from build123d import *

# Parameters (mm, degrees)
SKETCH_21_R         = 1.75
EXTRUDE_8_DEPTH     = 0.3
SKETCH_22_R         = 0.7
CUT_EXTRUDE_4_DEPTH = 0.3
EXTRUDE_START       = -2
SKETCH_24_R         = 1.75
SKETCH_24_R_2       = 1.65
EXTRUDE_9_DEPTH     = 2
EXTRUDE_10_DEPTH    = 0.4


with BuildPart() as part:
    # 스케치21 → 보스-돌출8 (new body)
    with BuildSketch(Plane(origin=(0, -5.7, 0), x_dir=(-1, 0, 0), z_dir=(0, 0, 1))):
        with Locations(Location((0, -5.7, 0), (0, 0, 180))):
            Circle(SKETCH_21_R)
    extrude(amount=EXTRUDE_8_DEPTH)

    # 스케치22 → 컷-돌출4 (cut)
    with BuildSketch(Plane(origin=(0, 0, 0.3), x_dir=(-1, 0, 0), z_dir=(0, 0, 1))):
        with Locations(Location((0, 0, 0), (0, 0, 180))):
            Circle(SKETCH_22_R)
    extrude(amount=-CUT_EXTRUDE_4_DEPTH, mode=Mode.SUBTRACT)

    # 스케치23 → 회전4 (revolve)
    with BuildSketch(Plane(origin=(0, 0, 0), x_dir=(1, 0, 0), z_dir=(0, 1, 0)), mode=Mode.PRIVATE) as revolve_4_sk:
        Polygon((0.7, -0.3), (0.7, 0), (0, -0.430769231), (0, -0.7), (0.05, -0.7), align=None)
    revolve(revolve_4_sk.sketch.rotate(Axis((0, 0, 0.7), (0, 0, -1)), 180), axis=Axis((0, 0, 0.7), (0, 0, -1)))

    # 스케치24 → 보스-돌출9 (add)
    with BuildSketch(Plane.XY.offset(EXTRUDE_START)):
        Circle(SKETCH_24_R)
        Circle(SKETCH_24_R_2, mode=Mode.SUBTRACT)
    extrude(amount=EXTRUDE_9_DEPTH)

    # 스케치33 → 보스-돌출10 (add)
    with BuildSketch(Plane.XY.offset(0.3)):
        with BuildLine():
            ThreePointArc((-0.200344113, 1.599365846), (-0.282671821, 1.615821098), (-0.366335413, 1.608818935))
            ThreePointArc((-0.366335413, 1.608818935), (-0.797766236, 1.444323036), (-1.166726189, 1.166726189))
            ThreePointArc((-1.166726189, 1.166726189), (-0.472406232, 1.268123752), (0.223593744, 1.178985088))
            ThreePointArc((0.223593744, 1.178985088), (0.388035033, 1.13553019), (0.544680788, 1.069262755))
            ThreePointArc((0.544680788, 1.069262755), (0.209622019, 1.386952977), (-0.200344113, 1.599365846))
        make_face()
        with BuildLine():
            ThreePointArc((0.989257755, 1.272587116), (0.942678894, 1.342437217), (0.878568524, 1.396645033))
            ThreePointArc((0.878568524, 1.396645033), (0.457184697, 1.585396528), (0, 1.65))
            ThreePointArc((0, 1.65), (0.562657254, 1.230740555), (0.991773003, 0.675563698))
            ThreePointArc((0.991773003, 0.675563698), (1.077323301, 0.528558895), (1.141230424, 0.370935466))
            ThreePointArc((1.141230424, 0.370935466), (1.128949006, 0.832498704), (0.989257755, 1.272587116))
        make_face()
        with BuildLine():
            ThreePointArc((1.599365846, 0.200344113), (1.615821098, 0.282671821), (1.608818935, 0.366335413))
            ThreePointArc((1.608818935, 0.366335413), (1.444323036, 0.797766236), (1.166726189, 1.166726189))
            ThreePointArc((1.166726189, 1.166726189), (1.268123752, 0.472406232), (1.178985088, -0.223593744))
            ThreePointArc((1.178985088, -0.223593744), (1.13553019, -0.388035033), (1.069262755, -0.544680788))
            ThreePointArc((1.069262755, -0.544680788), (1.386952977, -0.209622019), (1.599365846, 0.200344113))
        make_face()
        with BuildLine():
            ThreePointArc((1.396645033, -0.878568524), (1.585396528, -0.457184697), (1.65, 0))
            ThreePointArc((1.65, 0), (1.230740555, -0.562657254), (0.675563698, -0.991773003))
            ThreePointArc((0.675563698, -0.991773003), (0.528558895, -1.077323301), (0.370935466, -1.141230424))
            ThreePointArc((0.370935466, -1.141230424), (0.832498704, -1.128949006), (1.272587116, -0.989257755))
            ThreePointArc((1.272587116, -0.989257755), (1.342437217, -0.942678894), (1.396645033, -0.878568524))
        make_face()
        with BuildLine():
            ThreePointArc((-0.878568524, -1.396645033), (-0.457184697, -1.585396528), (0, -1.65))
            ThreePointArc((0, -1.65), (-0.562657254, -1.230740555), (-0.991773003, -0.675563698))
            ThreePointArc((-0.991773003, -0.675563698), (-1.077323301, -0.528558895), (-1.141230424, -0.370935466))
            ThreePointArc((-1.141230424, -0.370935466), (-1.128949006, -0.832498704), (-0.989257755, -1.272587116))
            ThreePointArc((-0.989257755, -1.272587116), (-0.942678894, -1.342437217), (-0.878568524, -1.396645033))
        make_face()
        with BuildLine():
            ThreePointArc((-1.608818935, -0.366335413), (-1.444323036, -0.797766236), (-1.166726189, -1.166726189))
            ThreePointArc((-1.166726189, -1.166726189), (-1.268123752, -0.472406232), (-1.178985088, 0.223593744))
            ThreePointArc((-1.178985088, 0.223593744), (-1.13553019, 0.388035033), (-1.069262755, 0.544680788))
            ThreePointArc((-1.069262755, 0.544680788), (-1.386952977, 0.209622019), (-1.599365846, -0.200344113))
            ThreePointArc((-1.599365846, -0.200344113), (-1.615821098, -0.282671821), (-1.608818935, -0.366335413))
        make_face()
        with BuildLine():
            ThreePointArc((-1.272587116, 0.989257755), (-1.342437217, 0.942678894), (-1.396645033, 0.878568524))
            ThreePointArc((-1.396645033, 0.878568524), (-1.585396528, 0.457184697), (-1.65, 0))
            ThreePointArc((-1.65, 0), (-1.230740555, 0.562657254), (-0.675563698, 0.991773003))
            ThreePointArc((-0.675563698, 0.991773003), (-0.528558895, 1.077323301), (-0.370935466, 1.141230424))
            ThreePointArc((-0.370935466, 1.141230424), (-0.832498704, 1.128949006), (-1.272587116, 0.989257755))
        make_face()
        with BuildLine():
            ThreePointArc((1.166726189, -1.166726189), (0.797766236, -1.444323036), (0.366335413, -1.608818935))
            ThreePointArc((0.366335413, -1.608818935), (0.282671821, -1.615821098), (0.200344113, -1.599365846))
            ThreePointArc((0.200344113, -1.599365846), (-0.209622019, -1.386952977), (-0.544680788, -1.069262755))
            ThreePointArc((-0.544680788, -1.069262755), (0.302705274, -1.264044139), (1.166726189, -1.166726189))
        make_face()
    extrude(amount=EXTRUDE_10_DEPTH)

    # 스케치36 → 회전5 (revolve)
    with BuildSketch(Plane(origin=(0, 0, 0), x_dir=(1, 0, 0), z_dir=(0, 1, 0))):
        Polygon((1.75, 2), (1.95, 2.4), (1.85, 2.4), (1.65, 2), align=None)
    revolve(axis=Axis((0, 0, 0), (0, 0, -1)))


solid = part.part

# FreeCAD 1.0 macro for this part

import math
import FreeCAD as App
import Part
import Sketcher

V = App.Vector
Q = App.Units.Quantity

doc = App.newDocument("Part")
body = doc.addObject("PartDesign::Body", "Body")

# Sketch on XY plane
sketch1 = body.newObject("Sketcher::SketchObject", "Sketch")
sketch1.AttachmentSupport = (doc.getObject("XY_Plane"), [""])
sketch1.MapMode = "FlatFace"
sketch1.addGeometry(Part.Circle(V(0, 0, 0), V(0, 0, 1), 1.75), False)
sketch1.addConstraint(Sketcher.Constraint("Coincident", 0, 3, -1, 1))
sketch1.addConstraint(Sketcher.Constraint("Diameter", 0, Q("3.5 mm")))
pad1 = body.newObject("PartDesign::Pad", "Pad")
pad1.Profile = sketch1
pad1.Length = 0.3

# Sketch on XY plane
sketch2 = body.newObject("Sketcher::SketchObject", "Sketch001")
sketch2.AttachmentSupport = (doc.getObject("XY_Plane"), [""])
sketch2.MapMode = "FlatFace"
sketch2.AttachmentOffset = App.Placement(V(0, 0, 0.3), App.Rotation())
sketch2.addGeometry(Part.Circle(V(0, 0, 0), V(0, 0, 1), 0.7), False)
sketch2.addConstraint(Sketcher.Constraint("Coincident", 0, 3, -1, 1))
sketch2.addConstraint(Sketcher.Constraint("Diameter", 0, Q("1.4 mm")))
pocket1 = body.newObject("PartDesign::Pocket", "Pocket")
pocket1.Profile = sketch2
pocket1.Length = 0.3

# Sketch on XZ plane
sketch3 = body.newObject("Sketcher::SketchObject", "Sketch002")
sketch3.AttachmentSupport = (doc.getObject("XZ_Plane"), [""])
sketch3.MapMode = "FlatFace"
sketch3.addGeometry(Part.LineSegment(V(0.7, 0.3, 0), V(0.7, 0, 0)), False)
sketch3.addGeometry(Part.LineSegment(V(0.7, 0, 0), V(0, 0.430769, 0)), False)
sketch3.addGeometry(Part.LineSegment(V(0, 0.430769, 0), V(0, 0.7, 0)), False)
sketch3.addGeometry(Part.LineSegment(V(0, 0.7, 0), V(0.05, 0.7, 0)), False)
sketch3.addGeometry(Part.LineSegment(V(0.05, 0.7, 0), V(0.7, 0.3, 0)), False)
sketch3.addConstraint(Sketcher.Constraint("Coincident", 0, 2, 1, 1))
sketch3.addConstraint(Sketcher.Constraint("Coincident", 1, 2, 2, 1))
sketch3.addConstraint(Sketcher.Constraint("Coincident", 2, 2, 3, 1))
sketch3.addConstraint(Sketcher.Constraint("Coincident", 3, 2, 4, 1))
sketch3.addConstraint(Sketcher.Constraint("Coincident", 4, 2, 0, 1))
sketch3.addConstraint(Sketcher.Constraint("Vertical", 0))
sketch3.addConstraint(Sketcher.Constraint("Vertical", 2))
sketch3.addConstraint(Sketcher.Constraint("Horizontal", 3))
sketch3.addConstraint(Sketcher.Constraint("PointOnObject", 0, 2, -1))
sketch3.addConstraint(Sketcher.Constraint("PointOnObject", 1, 2, -2))
sketch3.addConstraint(Sketcher.Constraint("Parallel", 1, 4))
sketch3.addConstraint(Sketcher.Constraint("DistanceY", 0, 2, 0, 1, Q("0.3 mm")))
sketch3.addConstraint(Sketcher.Constraint("DistanceX", 3, 1, 3, 2, Q("0.05 mm")))
sketch3.addConstraint(Sketcher.Constraint("DistanceX", -1, 1, 0, 2, Q("0.7 mm")))
sketch3.addConstraint(Sketcher.Constraint("DistanceY", -1, 1, 2, 2, Q("0.7 mm")))
revolution = body.newObject("PartDesign::Revolution", "Revolution")
revolution.Profile = sketch3
revolution.ReferenceAxis = (sketch3, ["V_Axis"])
revolution.Angle = 360

# Sketch on XY plane
sketch4 = body.newObject("Sketcher::SketchObject", "Sketch003")
sketch4.AttachmentSupport = (doc.getObject("XY_Plane"), [""])
sketch4.MapMode = "FlatFace"
sketch4.AttachmentOffset = App.Placement(V(0, 0, -2), App.Rotation())
sketch4.addGeometry(Part.Circle(V(0, 0, 0), V(0, 0, 1), 1.75), False)
sketch4.addGeometry(Part.Circle(V(0, 0, 0), V(0, 0, 1), 1.65), False)
sketch4.addConstraint(Sketcher.Constraint("Coincident", 0, 3, -1, 1))
sketch4.addConstraint(Sketcher.Constraint("Coincident", 1, 3, -1, 1))
sketch4.addConstraint(Sketcher.Constraint("Diameter", 0, Q("3.5 mm")))
sketch4.addConstraint(Sketcher.Constraint("Diameter", 1, Q("3.3 mm")))
pad2 = body.newObject("PartDesign::Pad", "Pad001")
pad2.Profile = sketch4
pad2.Length = 2

# Sketch on XY plane
sketch5 = body.newObject("Sketcher::SketchObject", "Sketch004")
sketch5.AttachmentSupport = (doc.getObject("XY_Plane"), [""])
sketch5.MapMode = "FlatFace"
sketch5.AttachmentOffset = App.Placement(V(0, 0, 0.3), App.Rotation())
sketch5.addGeometry(Part.ArcOfCircle(Part.Circle(V(-0.299729, 1.316306, 0), V(0, 0, 1), 0.3), math.radians(70.653341), math.radians(102.827791)), False)
sketch5.addGeometry(Part.ArcOfCircle(Part.Circle(V(0, 0, 0), V(0, 0, 1), 1.65), math.radians(102.827791), math.radians(135)), False)
sketch5.addGeometry(Part.ArcOfCircle(Part.Circle(V(-0.449623, -1.31576, 0), V(0, 0, 1), 2.583984), math.radians(74.898218), math.radians(106.112147)), False)
sketch5.addGeometry(Part.ArcOfCircle(Part.Circle(V(0, 0, 0), V(0, 0, 1), 1.2), math.radians(63.005777), math.radians(79.261425)), False)
sketch5.addGeometry(Part.ArcOfCircle(Part.Circle(V(-0.746961, 0.042539, 0), V(0, 0, 1), 1.65), math.radians(38.481132), math.radians(70.653341)), False)
sketch5.addGeometry(Part.ArcOfCircle(Part.Circle(V(0.718829, 1.14271, 0), V(0, 0, 1), 0.3), math.radians(25.653341), math.radians(57.827791)), False)
sketch5.addGeometry(Part.ArcOfCircle(Part.Circle(V(0, 0, 0), V(0, 0, 1), 1.65), math.radians(57.827791), math.radians(90)), False)
sketch5.addGeometry(Part.ArcOfCircle(Part.Circle(V(-1.248314, -0.612451, 0), V(0, 0, 1), 2.583984), math.radians(29.898218), math.radians(61.112147)), False)
sketch5.addGeometry(Part.ArcOfCircle(Part.Circle(V(0, 0, 0), V(0, 0, 1), 1.2), math.radians(18.005777), math.radians(34.261426)), False)
sketch5.addGeometry(Part.ArcOfCircle(Part.Circle(V(-0.498102, 0.558261, 0), V(0, 0, 1), 1.65), math.radians(-6.518868), math.radians(25.653341)), False)
sketch5.addGeometry(Part.ArcOfCircle(Part.Circle(V(1.316306, 0.299729, 0), V(0, 0, 1), 0.3), math.radians(-19.346659), math.radians(12.827791)), False)
sketch5.addGeometry(Part.ArcOfCircle(Part.Circle(V(0, 0, 0), V(0, 0, 1), 1.65), math.radians(12.827791), math.radians(45)), False)
sketch5.addGeometry(Part.ArcOfCircle(Part.Circle(V(-1.31576, 0.449623, 0), V(0, 0, 1), 2.583984), math.radians(-15.101782), math.radians(16.112147)), False)
sketch5.addGeometry(Part.ArcOfCircle(Part.Circle(V(0, 0, 0), V(0, 0, 1), 1.2), math.radians(-26.994223), math.radians(-10.738575)), False)
sketch5.addGeometry(Part.ArcOfCircle(Part.Circle(V(0.042539, 0.746961, 0), V(0, 0, 1), 1.65), math.radians(-51.518868), math.radians(-19.346659)), False)
sketch5.addGeometry(Part.ArcOfCircle(Part.Circle(V(0, 0, 0), V(0, 0, 1), 1.65), math.radians(-32.172209), math.radians(0)), False)
sketch5.addGeometry(Part.ArcOfCircle(Part.Circle(V(-0.612451, 1.248314, 0), V(0, 0, 1), 2.583984), math.radians(-60.101782), math.radians(-28.887853)), False)
sketch5.addGeometry(Part.ArcOfCircle(Part.Circle(V(0, 0, 0), V(0, 0, 1), 1.2), math.radians(-71.994223), math.radians(-55.738574)), False)
sketch5.addGeometry(Part.ArcOfCircle(Part.Circle(V(0.558261, 0.498102, 0), V(0, 0, 1), 1.65), math.radians(-96.518868), math.radians(-64.346659)), False)
sketch5.addGeometry(Part.ArcOfCircle(Part.Circle(V(1.14271, -0.718829, 0), V(0, 0, 1), 0.3), math.radians(-64.346659), math.radians(-32.172209)), False)
sketch5.addGeometry(Part.ArcOfCircle(Part.Circle(V(0, 0, 0), V(0, 0, 1), 1.65), math.radians(-122.172209), math.radians(-90)), False)
sketch5.addGeometry(Part.ArcOfCircle(Part.Circle(V(1.248314, 0.612451, 0), V(0, 0, 1), 2.583984), math.radians(-150.101782), math.radians(-118.887853)), False)
sketch5.addGeometry(Part.ArcOfCircle(Part.Circle(V(0, 0, 0), V(0, 0, 1), 1.2), math.radians(-161.994223), math.radians(-145.738574)), False)
sketch5.addGeometry(Part.ArcOfCircle(Part.Circle(V(0.498102, -0.558261, 0), V(0, 0, 1), 1.65), math.radians(173.481132), math.radians(205.653341)), False)
sketch5.addGeometry(Part.ArcOfCircle(Part.Circle(V(-0.718829, -1.14271, 0), V(0, 0, 1), 0.3), math.radians(-154.346659), math.radians(-122.172209)), False)
sketch5.addGeometry(Part.ArcOfCircle(Part.Circle(V(0, 0, 0), V(0, 0, 1), 1.65), math.radians(-167.172209), math.radians(-135)), False)
sketch5.addGeometry(Part.ArcOfCircle(Part.Circle(V(1.31576, -0.449623, 0), V(0, 0, 1), 2.583984), math.radians(164.898218), math.radians(196.112147)), False)
sketch5.addGeometry(Part.ArcOfCircle(Part.Circle(V(0, 0, 0), V(0, 0, 1), 1.2), math.radians(153.005777), math.radians(169.261425)), False)
sketch5.addGeometry(Part.ArcOfCircle(Part.Circle(V(-0.042539, -0.746961, 0), V(0, 0, 1), 1.65), math.radians(128.481132), math.radians(160.653341)), False)
sketch5.addGeometry(Part.ArcOfCircle(Part.Circle(V(-1.316306, -0.299729, 0), V(0, 0, 1), 0.3), math.radians(160.653341), math.radians(192.827791)), False)
sketch5.addGeometry(Part.ArcOfCircle(Part.Circle(V(-1.14271, 0.718829, 0), V(0, 0, 1), 0.3), math.radians(115.653341), math.radians(147.827791)), False)
sketch5.addGeometry(Part.ArcOfCircle(Part.Circle(V(0, 0, 0), V(0, 0, 1), 1.65), math.radians(147.827791), math.radians(180)), False)
sketch5.addGeometry(Part.ArcOfCircle(Part.Circle(V(0.612451, -1.248314, 0), V(0, 0, 1), 2.583984), math.radians(119.898218), math.radians(151.112147)), False)
sketch5.addGeometry(Part.ArcOfCircle(Part.Circle(V(0, 0, 0), V(0, 0, 1), 1.2), math.radians(108.005777), math.radians(124.261426)), False)
sketch5.addGeometry(Part.ArcOfCircle(Part.Circle(V(-0.558261, -0.498102, 0), V(0, 0, 1), 1.65), math.radians(83.481132), math.radians(115.653341)), False)
sketch5.addGeometry(Part.ArcOfCircle(Part.Circle(V(0, 0, 0), V(0, 0, 1), 1.65), math.radians(-77.172209), math.radians(-45)), False)
sketch5.addGeometry(Part.ArcOfCircle(Part.Circle(V(0.449623, 1.31576, 0), V(0, 0, 1), 2.583984), math.radians(-112.631015), math.radians(-73.887853)), False)
sketch5.addGeometry(Part.ArcOfCircle(Part.Circle(V(0.746961, -0.042539, 0), V(0, 0, 1), 1.65), math.radians(-141.518868), math.radians(-109.346659)), False)
sketch5.addGeometry(Part.ArcOfCircle(Part.Circle(V(0.299729, -1.316306, 0), V(0, 0, 1), 0.3), math.radians(-109.346659), math.radians(-77.172209)), False)
sketch5.addConstraint(Sketcher.Constraint("Tangent", 0, 2, 1, 1))
sketch5.addConstraint(Sketcher.Constraint("Coincident", 1, 2, 2, 2))
sketch5.addConstraint(Sketcher.Constraint("Coincident", 2, 1, 3, 2))
sketch5.addConstraint(Sketcher.Constraint("Coincident", 3, 1, 4, 1))
sketch5.addConstraint(Sketcher.Constraint("Tangent", 4, 2, 0, 1))
sketch5.addConstraint(Sketcher.Constraint("Tangent", 5, 2, 6, 1))
sketch5.addConstraint(Sketcher.Constraint("Coincident", 6, 2, 7, 2))
sketch5.addConstraint(Sketcher.Constraint("Coincident", 7, 1, 8, 2))
sketch5.addConstraint(Sketcher.Constraint("Coincident", 8, 1, 9, 1))
sketch5.addConstraint(Sketcher.Constraint("Tangent", 9, 2, 5, 1))
sketch5.addConstraint(Sketcher.Constraint("Tangent", 10, 2, 11, 1))
sketch5.addConstraint(Sketcher.Constraint("Coincident", 11, 2, 12, 2))
sketch5.addConstraint(Sketcher.Constraint("Coincident", 12, 1, 13, 2))
sketch5.addConstraint(Sketcher.Constraint("Coincident", 13, 1, 14, 1))
sketch5.addConstraint(Sketcher.Constraint("Tangent", 14, 2, 10, 1))
sketch5.addConstraint(Sketcher.Constraint("Coincident", 15, 2, 16, 2))
sketch5.addConstraint(Sketcher.Constraint("Coincident", 16, 1, 17, 2))
sketch5.addConstraint(Sketcher.Constraint("Coincident", 17, 1, 18, 1))
sketch5.addConstraint(Sketcher.Constraint("Tangent", 18, 2, 19, 1))
sketch5.addConstraint(Sketcher.Constraint("Tangent", 19, 2, 15, 1))
sketch5.addConstraint(Sketcher.Constraint("Coincident", 20, 2, 21, 2))
sketch5.addConstraint(Sketcher.Constraint("Coincident", 21, 1, 22, 2))
sketch5.addConstraint(Sketcher.Constraint("Coincident", 22, 1, 23, 1))
sketch5.addConstraint(Sketcher.Constraint("Tangent", 23, 2, 24, 1))
sketch5.addConstraint(Sketcher.Constraint("Tangent", 24, 2, 20, 1))
sketch5.addConstraint(Sketcher.Constraint("Coincident", 25, 2, 26, 2))
sketch5.addConstraint(Sketcher.Constraint("Coincident", 26, 1, 27, 2))
sketch5.addConstraint(Sketcher.Constraint("Coincident", 27, 1, 28, 1))
sketch5.addConstraint(Sketcher.Constraint("Tangent", 28, 2, 29, 1))
sketch5.addConstraint(Sketcher.Constraint("Tangent", 29, 2, 25, 1))
sketch5.addConstraint(Sketcher.Constraint("Tangent", 30, 2, 31, 1))
sketch5.addConstraint(Sketcher.Constraint("Coincident", 31, 2, 32, 2))
sketch5.addConstraint(Sketcher.Constraint("Coincident", 32, 1, 33, 2))
sketch5.addConstraint(Sketcher.Constraint("Coincident", 33, 1, 34, 1))
sketch5.addConstraint(Sketcher.Constraint("Tangent", 34, 2, 30, 1))
sketch5.addConstraint(Sketcher.Constraint("Coincident", 35, 2, 36, 2))
sketch5.addConstraint(Sketcher.Constraint("Coincident", 36, 1, 37, 1))
sketch5.addConstraint(Sketcher.Constraint("Tangent", 37, 2, 38, 1))
sketch5.addConstraint(Sketcher.Constraint("Tangent", 38, 2, 35, 1))
sketch5.addConstraint(Sketcher.Constraint("Coincident", 1, 3, -1, 1))
sketch5.addConstraint(Sketcher.Constraint("Coincident", 3, 3, -1, 1))
sketch5.addConstraint(Sketcher.Constraint("Coincident", 6, 3, -1, 1))
sketch5.addConstraint(Sketcher.Constraint("Coincident", 8, 3, -1, 1))
sketch5.addConstraint(Sketcher.Constraint("Coincident", 11, 3, -1, 1))
sketch5.addConstraint(Sketcher.Constraint("Coincident", 13, 3, -1, 1))
sketch5.addConstraint(Sketcher.Constraint("Coincident", 15, 3, -1, 1))
sketch5.addConstraint(Sketcher.Constraint("Coincident", 17, 3, -1, 1))
sketch5.addConstraint(Sketcher.Constraint("Coincident", 20, 3, -1, 1))
sketch5.addConstraint(Sketcher.Constraint("Coincident", 22, 3, -1, 1))
sketch5.addConstraint(Sketcher.Constraint("Coincident", 25, 3, -1, 1))
sketch5.addConstraint(Sketcher.Constraint("Coincident", 27, 3, -1, 1))
sketch5.addConstraint(Sketcher.Constraint("Coincident", 31, 3, -1, 1))
sketch5.addConstraint(Sketcher.Constraint("Coincident", 33, 3, -1, 1))
sketch5.addConstraint(Sketcher.Constraint("Coincident", 35, 3, -1, 1))
sketch5.addConstraint(Sketcher.Constraint("Equal", 1, 4))
sketch5.addConstraint(Sketcher.Constraint("Equal", 0, 5))
sketch5.addConstraint(Sketcher.Constraint("Equal", 4, 6))
sketch5.addConstraint(Sketcher.Constraint("Equal", 2, 7))
sketch5.addConstraint(Sketcher.Constraint("Equal", 3, 8))
sketch5.addConstraint(Sketcher.Constraint("Equal", 6, 9))
sketch5.addConstraint(Sketcher.Constraint("Equal", 5, 10))
sketch5.addConstraint(Sketcher.Constraint("Equal", 9, 11))
sketch5.addConstraint(Sketcher.Constraint("Equal", 7, 12))
sketch5.addConstraint(Sketcher.Constraint("Equal", 8, 13))
sketch5.addConstraint(Sketcher.Constraint("Equal", 11, 14))
sketch5.addConstraint(Sketcher.Constraint("Equal", 14, 15))
sketch5.addConstraint(Sketcher.Constraint("Equal", 12, 16))
sketch5.addConstraint(Sketcher.Constraint("Equal", 13, 17))
sketch5.addConstraint(Sketcher.Constraint("Equal", 15, 18))
sketch5.addConstraint(Sketcher.Constraint("Equal", 10, 19))
sketch5.addConstraint(Sketcher.Constraint("Equal", 18, 20))
sketch5.addConstraint(Sketcher.Constraint("Equal", 16, 21))
sketch5.addConstraint(Sketcher.Constraint("Equal", 17, 22))
sketch5.addConstraint(Sketcher.Constraint("Equal", 20, 23))
sketch5.addConstraint(Sketcher.Constraint("Equal", 19, 24))
sketch5.addConstraint(Sketcher.Constraint("Equal", 23, 25))
sketch5.addConstraint(Sketcher.Constraint("Equal", 21, 26))
sketch5.addConstraint(Sketcher.Constraint("Equal", 22, 27))
sketch5.addConstraint(Sketcher.Constraint("Equal", 25, 28))
sketch5.addConstraint(Sketcher.Constraint("Equal", 24, 29))
sketch5.addConstraint(Sketcher.Constraint("Equal", 29, 30))
sketch5.addConstraint(Sketcher.Constraint("Equal", 28, 31))
sketch5.addConstraint(Sketcher.Constraint("Equal", 26, 32))
sketch5.addConstraint(Sketcher.Constraint("Equal", 27, 33))
sketch5.addConstraint(Sketcher.Constraint("Equal", 31, 34))
sketch5.addConstraint(Sketcher.Constraint("Equal", 34, 35))
sketch5.addConstraint(Sketcher.Constraint("Equal", 32, 36))
sketch5.addConstraint(Sketcher.Constraint("Equal", 35, 37))
sketch5.addConstraint(Sketcher.Constraint("Equal", 30, 38))
sketch5.addConstraint(Sketcher.Constraint("Symmetric", 7, 3, 21, 3, -1, 1))
sketch5.addConstraint(Sketcher.Constraint("Symmetric", 9, 3, 23, 3, -1, 1))
sketch5.addConstraint(Sketcher.Constraint("Symmetric", 12, 3, 26, 3, -1, 1))
sketch5.addConstraint(Sketcher.Constraint("Symmetric", 14, 3, 28, 3, -1, 1))
sketch5.addConstraint(Sketcher.Constraint("Symmetric", 16, 3, 32, 3, -1, 1))
sketch5.addConstraint(Sketcher.Constraint("Symmetric", 18, 3, 34, 3, -1, 1))
sketch5.addConstraint(Sketcher.Constraint("Symmetric", 2, 3, 36, 3, -1, 1))
sketch5.addConstraint(Sketcher.Constraint("Symmetric", 4, 3, 37, 3, -1, 1))
sketch5.addConstraint(Sketcher.Constraint("PointOnObject", 6, 2, -2))
sketch5.addConstraint(Sketcher.Constraint("PointOnObject", 15, 2, -1))
sketch5.addConstraint(Sketcher.Constraint("Horizontal", 1, 2, 11, 2))
sketch5.addConstraint(Sketcher.Constraint("Radius", 0, Q("0.3 mm")))
sketch5.addConstraint(Sketcher.Constraint("Radius", 3, Q("1.2 mm")))
sketch5.addConstraint(Sketcher.Constraint("Radius", 1, Q("1.65 mm")))
sketch5.addConstraint(Sketcher.Constraint("Radius", 2, Q("2.583984 mm")))
sketch5.addConstraint(Sketcher.Constraint("DistanceX", 9, 3, -1, 1, Q("0.498102 mm")))
sketch5.addConstraint(Sketcher.Constraint("DistanceY", -1, 1, 18, 3, Q("0.498102 mm")))
sketch5.addConstraint(Sketcher.Constraint("DistanceX", 0, 3, -1, 1, Q("0.299729 mm")))
sketch5.addConstraint(Sketcher.Constraint("DistanceY", 2, 3, -1, 1, Q("1.31576 mm")))
sketch5.addConstraint(Sketcher.Constraint("DistanceX", 4, 3, -1, 1, Q("0.746961 mm")))
sketch5.addConstraint(Sketcher.Constraint("DistanceX", -1, 1, 5, 3, Q("0.718829 mm")))
sketch5.addConstraint(Sketcher.Constraint("DistanceY", 7, 3, -1, 1, Q("0.612451 mm")))
sketch5.addConstraint(Sketcher.Constraint("DistanceY", -1, 1, 10, 3, Q("0.299729 mm")))
sketch5.addConstraint(Sketcher.Constraint("DistanceX", 12, 3, -1, 1, Q("1.31576 mm")))
sketch5.addConstraint(Sketcher.Constraint("DistanceX", -1, 1, 14, 3, Q("0.042539 mm")))
sketch5.addConstraint(Sketcher.Constraint("DistanceX", 16, 3, -1, 1, Q("0.612451 mm")))
sketch5.addConstraint(Sketcher.Constraint("DistanceX", -1, 1, 18, 3, Q("0.558261 mm")))
sketch5.addConstraint(Sketcher.Constraint("DistanceX", 36, 1, -1, 1, Q("0.544681 mm")))
pad3 = body.newObject("PartDesign::Pad", "Pad002")
pad3.Profile = sketch5
pad3.Length = 0.4

# Sketch on XZ plane
sketch6 = body.newObject("Sketcher::SketchObject", "Sketch005")
sketch6.AttachmentSupport = (doc.getObject("XZ_Plane"), [""])
sketch6.MapMode = "FlatFace"
sketch6.addGeometry(Part.LineSegment(V(1.75, -2, 0), V(1.95, -2.4, 0)), False)
sketch6.addGeometry(Part.LineSegment(V(1.95, -2.4, 0), V(1.85, -2.4, 0)), False)
sketch6.addGeometry(Part.LineSegment(V(1.85, -2.4, 0), V(1.65, -2, 0)), False)
sketch6.addGeometry(Part.LineSegment(V(1.65, -2, 0), V(1.75, -2, 0)), False)
sketch6.addConstraint(Sketcher.Constraint("Coincident", 0, 2, 1, 1))
sketch6.addConstraint(Sketcher.Constraint("Coincident", 1, 2, 2, 1))
sketch6.addConstraint(Sketcher.Constraint("Coincident", 2, 2, 3, 1))
sketch6.addConstraint(Sketcher.Constraint("Coincident", 3, 2, 0, 1))
sketch6.addConstraint(Sketcher.Constraint("Horizontal", 1))
sketch6.addConstraint(Sketcher.Constraint("Horizontal", 3))
sketch6.addConstraint(Sketcher.Constraint("Parallel", 0, 2))
sketch6.addConstraint(Sketcher.Constraint("DistanceX", 1, 2, 1, 1, Q("0.1 mm")))
sketch6.addConstraint(Sketcher.Constraint("DistanceY", 2, 2, -1, 1, Q("2 mm")))
sketch6.addConstraint(Sketcher.Constraint("DistanceY", 0, 2, -1, 1, Q("2.4 mm")))
sketch6.addConstraint(Sketcher.Constraint("DistanceX", 2, 2, 1, 2, Q("0.2 mm")))
sketch6.addConstraint(Sketcher.Constraint("DistanceX", -1, 1, 0, 2, Q("1.95 mm")))
revolution2 = body.newObject("PartDesign::Revolution", "Revolution001")
revolution2.Profile = sketch6
revolution2.ReferenceAxis = (sketch6, ["V_Axis"])
revolution2.Angle = 360

doc.recompute()
